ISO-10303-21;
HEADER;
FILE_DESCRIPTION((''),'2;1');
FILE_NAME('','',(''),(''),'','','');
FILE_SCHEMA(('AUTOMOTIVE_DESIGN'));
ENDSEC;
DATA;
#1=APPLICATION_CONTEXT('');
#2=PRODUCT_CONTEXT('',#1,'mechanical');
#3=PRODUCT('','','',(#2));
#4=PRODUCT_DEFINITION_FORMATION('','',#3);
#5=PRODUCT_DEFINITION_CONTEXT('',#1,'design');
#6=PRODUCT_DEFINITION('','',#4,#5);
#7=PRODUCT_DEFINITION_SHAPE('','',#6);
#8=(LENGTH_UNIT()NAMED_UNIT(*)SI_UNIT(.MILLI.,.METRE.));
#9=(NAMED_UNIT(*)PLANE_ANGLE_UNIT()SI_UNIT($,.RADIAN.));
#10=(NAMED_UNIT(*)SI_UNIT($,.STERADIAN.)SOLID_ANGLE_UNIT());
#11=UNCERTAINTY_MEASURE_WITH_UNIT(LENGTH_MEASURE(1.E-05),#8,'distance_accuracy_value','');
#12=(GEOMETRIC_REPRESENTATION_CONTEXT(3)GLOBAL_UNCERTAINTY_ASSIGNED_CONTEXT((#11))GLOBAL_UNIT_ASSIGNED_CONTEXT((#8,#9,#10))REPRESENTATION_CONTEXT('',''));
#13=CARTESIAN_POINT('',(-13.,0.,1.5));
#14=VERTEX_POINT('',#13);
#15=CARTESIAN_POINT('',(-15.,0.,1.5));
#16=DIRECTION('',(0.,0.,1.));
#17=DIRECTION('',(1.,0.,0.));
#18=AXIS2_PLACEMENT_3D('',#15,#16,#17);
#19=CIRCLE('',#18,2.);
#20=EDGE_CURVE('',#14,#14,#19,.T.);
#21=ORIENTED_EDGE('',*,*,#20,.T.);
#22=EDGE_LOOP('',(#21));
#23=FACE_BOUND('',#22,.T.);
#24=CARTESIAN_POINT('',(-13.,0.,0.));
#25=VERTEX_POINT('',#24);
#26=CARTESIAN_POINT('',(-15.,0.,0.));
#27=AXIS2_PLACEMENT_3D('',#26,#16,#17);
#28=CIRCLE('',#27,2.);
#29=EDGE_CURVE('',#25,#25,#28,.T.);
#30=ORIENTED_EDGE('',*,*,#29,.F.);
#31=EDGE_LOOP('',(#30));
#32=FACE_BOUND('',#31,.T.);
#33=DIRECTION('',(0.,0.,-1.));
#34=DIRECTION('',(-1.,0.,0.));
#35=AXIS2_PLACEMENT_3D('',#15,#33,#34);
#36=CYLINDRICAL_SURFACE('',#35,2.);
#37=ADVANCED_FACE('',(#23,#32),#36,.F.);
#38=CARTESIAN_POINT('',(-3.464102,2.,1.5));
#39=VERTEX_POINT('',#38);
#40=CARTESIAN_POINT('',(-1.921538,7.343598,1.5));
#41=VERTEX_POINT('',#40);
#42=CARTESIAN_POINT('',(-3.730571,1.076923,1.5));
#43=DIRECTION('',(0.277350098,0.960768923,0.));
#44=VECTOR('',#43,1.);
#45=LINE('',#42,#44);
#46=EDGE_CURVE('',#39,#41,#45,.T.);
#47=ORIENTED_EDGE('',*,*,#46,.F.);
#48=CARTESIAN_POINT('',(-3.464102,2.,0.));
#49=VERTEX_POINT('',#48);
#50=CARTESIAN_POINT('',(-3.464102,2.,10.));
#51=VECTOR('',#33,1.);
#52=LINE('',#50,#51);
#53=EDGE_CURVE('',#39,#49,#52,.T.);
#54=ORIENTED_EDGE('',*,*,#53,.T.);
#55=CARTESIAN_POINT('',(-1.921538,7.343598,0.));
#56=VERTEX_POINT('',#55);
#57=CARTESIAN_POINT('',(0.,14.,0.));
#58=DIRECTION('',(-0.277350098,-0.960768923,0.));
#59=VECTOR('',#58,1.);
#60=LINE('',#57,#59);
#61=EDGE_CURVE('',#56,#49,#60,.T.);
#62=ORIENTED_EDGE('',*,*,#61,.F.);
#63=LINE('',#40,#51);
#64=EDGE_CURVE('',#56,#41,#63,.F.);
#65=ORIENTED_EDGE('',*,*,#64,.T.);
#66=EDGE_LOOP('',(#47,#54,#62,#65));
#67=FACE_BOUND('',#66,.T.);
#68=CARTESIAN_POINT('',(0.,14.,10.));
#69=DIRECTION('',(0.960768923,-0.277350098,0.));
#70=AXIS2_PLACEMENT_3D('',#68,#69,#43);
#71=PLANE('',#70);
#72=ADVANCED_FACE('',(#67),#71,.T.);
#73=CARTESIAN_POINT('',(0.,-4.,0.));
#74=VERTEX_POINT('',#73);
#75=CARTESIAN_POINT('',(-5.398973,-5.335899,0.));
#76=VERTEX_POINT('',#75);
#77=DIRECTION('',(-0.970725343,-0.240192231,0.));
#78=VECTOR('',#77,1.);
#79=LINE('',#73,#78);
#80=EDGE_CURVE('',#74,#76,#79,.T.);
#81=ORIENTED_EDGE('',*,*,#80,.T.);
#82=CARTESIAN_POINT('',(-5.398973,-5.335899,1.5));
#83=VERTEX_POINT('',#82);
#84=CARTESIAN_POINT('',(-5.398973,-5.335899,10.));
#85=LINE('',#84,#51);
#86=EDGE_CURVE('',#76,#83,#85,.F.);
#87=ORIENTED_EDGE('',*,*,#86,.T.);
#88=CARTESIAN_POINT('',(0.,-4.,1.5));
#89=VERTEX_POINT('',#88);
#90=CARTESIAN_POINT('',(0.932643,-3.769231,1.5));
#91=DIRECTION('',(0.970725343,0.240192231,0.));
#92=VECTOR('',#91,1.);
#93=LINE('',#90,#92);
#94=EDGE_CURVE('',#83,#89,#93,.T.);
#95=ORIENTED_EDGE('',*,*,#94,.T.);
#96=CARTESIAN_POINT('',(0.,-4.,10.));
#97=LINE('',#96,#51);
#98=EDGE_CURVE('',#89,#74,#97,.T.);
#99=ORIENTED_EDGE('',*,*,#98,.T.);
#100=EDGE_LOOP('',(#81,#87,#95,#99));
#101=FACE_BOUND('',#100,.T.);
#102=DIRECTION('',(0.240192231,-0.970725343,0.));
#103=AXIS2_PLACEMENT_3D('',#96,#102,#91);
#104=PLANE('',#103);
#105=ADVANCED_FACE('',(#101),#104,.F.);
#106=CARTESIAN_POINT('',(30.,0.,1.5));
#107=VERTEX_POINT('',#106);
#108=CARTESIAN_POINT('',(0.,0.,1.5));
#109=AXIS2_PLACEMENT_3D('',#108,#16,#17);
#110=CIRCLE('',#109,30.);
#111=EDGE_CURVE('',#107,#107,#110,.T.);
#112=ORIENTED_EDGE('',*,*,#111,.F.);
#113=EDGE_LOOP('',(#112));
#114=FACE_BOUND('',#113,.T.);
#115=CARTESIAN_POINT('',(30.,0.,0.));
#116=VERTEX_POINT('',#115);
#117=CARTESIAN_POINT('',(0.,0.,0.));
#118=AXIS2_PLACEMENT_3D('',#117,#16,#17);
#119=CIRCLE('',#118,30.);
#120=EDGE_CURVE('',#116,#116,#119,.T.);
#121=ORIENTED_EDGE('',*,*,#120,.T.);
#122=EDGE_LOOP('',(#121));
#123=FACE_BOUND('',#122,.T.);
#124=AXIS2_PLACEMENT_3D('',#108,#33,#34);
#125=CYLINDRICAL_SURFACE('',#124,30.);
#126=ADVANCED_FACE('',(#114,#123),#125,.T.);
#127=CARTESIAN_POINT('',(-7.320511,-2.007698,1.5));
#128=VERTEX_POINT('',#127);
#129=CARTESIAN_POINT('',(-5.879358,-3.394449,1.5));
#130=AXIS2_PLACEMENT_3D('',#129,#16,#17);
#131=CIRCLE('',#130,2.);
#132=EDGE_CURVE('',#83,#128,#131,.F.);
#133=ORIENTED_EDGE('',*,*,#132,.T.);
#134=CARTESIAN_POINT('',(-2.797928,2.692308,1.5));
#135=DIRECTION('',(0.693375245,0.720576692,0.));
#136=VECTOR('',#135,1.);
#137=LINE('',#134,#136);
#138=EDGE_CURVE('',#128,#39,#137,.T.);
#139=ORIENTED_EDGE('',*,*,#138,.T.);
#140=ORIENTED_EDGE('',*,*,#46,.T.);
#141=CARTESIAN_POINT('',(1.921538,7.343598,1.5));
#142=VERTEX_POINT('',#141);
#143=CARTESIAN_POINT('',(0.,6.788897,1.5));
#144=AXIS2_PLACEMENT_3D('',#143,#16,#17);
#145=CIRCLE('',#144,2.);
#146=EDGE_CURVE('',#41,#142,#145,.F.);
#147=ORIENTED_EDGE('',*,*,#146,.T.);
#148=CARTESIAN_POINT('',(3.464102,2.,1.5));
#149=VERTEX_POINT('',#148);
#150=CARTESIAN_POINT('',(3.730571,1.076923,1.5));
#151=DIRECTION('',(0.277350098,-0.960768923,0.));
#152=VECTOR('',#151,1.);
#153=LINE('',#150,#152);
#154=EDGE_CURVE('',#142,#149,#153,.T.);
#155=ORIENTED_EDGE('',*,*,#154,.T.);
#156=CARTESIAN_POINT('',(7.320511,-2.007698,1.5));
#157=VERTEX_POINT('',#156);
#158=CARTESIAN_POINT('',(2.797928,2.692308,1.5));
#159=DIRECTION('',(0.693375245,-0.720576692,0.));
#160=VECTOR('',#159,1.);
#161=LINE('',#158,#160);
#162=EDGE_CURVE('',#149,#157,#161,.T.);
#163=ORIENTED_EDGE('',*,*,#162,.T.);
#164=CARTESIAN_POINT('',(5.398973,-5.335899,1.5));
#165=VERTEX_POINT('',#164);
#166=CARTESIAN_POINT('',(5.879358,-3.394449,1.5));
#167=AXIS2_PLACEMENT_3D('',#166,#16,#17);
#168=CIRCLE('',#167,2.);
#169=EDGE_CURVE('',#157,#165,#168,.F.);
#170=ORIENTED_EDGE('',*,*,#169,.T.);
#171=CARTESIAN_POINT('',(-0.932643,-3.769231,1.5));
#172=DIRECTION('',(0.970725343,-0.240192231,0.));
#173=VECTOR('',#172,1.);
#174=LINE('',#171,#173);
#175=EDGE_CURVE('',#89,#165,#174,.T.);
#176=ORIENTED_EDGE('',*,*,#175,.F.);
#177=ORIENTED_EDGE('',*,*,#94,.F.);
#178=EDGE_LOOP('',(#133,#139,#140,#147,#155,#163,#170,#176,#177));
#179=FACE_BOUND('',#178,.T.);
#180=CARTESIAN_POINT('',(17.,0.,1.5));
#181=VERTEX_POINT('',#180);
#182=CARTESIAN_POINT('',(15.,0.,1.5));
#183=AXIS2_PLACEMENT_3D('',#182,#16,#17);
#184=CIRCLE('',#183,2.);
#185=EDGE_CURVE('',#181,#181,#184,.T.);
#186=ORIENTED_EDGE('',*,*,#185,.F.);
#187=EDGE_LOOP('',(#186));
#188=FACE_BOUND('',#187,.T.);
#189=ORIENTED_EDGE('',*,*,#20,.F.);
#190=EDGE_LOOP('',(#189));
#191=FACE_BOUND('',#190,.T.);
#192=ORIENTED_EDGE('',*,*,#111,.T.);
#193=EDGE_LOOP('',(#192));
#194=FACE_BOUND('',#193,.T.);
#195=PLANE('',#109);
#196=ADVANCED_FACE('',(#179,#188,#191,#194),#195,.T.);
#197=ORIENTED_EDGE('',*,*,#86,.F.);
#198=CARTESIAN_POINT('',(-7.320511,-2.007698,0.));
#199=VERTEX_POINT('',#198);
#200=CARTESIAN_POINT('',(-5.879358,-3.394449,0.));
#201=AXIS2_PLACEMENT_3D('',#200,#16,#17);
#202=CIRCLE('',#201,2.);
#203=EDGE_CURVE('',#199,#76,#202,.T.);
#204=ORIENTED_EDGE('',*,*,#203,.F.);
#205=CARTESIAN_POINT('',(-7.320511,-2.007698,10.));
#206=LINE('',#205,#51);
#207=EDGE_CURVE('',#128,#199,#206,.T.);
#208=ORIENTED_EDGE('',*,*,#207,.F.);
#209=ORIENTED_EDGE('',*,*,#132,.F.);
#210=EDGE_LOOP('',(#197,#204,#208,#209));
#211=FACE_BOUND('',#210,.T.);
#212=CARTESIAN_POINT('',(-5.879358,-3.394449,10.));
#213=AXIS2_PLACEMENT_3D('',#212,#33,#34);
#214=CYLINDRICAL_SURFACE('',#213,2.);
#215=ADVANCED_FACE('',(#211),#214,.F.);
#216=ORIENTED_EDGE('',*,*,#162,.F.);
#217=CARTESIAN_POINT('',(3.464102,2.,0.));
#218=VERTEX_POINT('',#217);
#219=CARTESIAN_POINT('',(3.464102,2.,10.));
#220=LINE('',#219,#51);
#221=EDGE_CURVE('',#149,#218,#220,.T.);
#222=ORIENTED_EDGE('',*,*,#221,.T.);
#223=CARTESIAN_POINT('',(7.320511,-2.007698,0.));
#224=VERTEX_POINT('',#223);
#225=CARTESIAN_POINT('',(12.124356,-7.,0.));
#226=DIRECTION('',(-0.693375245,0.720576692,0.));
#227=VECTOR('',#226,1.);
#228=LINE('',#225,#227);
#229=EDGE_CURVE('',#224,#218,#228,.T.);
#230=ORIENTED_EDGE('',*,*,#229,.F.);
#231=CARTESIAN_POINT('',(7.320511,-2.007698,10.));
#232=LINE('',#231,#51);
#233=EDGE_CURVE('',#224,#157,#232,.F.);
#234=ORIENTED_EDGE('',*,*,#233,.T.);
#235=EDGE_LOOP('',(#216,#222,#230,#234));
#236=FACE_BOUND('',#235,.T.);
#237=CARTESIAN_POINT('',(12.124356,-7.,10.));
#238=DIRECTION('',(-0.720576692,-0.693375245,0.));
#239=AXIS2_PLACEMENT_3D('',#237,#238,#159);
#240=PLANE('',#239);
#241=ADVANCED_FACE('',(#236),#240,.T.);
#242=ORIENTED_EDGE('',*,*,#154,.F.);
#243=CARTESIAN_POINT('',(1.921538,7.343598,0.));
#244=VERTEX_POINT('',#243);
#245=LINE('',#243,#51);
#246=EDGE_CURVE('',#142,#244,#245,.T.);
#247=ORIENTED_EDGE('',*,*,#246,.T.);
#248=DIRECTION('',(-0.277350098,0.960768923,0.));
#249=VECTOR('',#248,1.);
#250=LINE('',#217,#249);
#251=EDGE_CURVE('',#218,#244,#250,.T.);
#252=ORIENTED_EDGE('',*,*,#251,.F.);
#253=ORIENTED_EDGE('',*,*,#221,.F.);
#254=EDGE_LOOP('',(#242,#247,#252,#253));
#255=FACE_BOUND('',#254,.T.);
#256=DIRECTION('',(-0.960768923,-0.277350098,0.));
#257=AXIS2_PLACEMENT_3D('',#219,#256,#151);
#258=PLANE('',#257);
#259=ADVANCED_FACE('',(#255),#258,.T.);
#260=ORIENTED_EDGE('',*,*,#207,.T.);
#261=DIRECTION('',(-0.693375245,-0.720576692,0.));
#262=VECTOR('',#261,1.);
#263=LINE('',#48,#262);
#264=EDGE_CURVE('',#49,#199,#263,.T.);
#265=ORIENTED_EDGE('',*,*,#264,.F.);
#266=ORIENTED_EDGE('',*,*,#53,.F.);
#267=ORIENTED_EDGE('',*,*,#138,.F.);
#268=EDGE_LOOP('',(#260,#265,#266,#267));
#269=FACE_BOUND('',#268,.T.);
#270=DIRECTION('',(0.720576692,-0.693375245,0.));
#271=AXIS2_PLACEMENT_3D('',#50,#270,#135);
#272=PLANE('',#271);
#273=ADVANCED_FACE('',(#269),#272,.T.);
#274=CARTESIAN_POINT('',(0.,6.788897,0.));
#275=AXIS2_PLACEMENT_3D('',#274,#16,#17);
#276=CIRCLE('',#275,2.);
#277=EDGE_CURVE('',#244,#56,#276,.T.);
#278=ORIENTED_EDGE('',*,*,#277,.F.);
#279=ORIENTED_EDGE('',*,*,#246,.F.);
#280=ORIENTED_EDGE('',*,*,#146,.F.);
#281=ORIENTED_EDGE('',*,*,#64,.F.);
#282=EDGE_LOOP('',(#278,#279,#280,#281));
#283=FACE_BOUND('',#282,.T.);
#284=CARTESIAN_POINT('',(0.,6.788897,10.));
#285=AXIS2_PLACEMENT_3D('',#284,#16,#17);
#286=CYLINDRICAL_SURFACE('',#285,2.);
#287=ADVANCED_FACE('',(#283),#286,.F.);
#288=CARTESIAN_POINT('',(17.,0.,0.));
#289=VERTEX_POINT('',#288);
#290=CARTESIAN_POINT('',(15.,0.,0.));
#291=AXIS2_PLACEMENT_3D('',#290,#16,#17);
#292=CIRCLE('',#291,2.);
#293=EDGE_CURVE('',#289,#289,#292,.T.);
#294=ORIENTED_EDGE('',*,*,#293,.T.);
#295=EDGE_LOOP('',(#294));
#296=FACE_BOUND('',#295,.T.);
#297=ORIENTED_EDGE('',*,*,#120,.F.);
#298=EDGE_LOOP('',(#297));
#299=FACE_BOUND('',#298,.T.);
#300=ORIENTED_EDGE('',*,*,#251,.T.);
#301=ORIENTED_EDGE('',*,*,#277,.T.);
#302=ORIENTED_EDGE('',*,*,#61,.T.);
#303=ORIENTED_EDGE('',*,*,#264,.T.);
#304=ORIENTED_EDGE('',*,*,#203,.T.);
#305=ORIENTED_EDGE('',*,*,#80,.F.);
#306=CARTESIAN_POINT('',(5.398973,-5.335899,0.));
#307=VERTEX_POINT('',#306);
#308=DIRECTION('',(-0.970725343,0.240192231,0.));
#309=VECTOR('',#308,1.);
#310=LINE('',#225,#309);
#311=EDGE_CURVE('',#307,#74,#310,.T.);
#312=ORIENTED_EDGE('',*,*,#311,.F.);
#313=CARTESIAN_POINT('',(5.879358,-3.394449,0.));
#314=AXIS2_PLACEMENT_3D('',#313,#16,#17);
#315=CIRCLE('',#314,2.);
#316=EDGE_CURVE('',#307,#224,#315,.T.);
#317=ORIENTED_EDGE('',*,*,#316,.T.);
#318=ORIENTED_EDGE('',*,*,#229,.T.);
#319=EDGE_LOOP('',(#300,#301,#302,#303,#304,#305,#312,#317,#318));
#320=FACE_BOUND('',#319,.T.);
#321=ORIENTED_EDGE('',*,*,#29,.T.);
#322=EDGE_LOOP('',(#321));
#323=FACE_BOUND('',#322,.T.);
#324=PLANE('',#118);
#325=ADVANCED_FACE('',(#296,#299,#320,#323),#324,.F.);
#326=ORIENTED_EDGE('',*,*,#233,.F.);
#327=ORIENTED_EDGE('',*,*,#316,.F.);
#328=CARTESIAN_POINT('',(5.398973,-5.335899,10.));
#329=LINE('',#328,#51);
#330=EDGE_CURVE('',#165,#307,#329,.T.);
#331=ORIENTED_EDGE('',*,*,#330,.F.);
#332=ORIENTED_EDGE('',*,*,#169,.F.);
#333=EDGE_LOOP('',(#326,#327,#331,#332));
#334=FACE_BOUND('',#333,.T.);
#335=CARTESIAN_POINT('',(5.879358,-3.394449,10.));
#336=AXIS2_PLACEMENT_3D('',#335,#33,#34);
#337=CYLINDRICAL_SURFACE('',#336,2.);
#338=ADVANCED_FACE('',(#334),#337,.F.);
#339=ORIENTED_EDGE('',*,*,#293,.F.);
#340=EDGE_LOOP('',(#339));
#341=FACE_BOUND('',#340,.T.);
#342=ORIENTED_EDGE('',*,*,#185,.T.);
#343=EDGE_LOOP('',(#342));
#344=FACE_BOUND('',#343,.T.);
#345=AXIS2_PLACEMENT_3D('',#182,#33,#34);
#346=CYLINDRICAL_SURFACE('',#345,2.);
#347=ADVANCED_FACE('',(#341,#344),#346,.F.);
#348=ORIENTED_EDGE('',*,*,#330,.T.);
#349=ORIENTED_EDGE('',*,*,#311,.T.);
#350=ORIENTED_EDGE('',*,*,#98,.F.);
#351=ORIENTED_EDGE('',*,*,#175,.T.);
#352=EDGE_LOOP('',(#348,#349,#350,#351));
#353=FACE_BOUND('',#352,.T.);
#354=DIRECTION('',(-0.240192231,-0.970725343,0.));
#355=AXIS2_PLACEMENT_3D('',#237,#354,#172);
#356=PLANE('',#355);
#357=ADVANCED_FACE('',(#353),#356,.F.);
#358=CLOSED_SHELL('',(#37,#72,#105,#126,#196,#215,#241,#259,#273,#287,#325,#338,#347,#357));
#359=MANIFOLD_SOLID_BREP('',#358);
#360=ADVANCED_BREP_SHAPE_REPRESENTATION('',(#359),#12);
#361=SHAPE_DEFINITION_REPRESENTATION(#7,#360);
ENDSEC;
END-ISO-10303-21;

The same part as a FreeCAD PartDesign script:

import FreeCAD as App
import Part
import Sketcher

V = App.Vector


def edges_at(feature, points):
    """Names of the edges that pass closest to the given points."""
    edges = feature.Shape.Edges
    near = lambda p: min(range(len(edges)), key=lambda i: edges[i].distToShape(Part.Vertex(*p))[0])
    return sorted({f"Edge{near(p) + 1}" for p in points})

doc = App.newDocument("Part")
body = doc.addObject("PartDesign::Body", "Body")

# Sketch on XY plane
sketch1 = body.newObject("Sketcher::SketchObject", "Sketch")
sketch1.AttachmentSupport = (doc.getObject("XY_Plane"), [""])
sketch1.MapMode = "FlatFace"
sketch1.addGeometry([
    Part.Circle(V(0, 0, 0), V(0, 0, 1), 30),
    Part.Circle(V(-15, 0, 0), V(0, 0, 1), 2),
    Part.Circle(V(15, 0, 0), V(0, 0, 1), 2),
], False)
sketch1.addConstraint([
    Sketcher.Constraint("Coincident", 0, 3, -1, 1),
    Sketcher.Constraint("Equal", 1, 2),
    Sketcher.Constraint("Symmetric", 1, 3, 2, 3, -1, 1),
    Sketcher.Constraint("PointOnObject", 1, 3, -1),
    Sketcher.Constraint("Diameter", 0, 60.0),
    Sketcher.Constraint("Diameter", 1, 4.0),
    Sketcher.Constraint("DistanceX", 1, 3, -1, 1, 15.0),
])
pad1 = body.newObject("PartDesign::Pad", "Pad")
pad1.Profile = sketch1
pad1.Length = 1.5

# Sketch on XY plane
sketch2 = body.newObject("Sketcher::SketchObject", "Sketch001")
sketch2.AttachmentSupport = (doc.getObject("XY_Plane"), [""])
sketch2.MapMode = "FlatFace"
sketch2.addGeometry([
    Part.LineSegment(V(3, 2, 0), V(12, -7, 0)),  # 0
    Part.LineSegment(V(12, -7, 0), V(0, -4, 0)),  # 1
    Part.LineSegment(V(0, -4, 0), V(-12, -7, 0)),  # 2
    Part.LineSegment(V(-12, -7, 0), V(-3, 2, 0)),  # 3
    Part.LineSegment(V(-3, 2, 0), V(0, 14, 0)),  # 4
    Part.LineSegment(V(0, 14, 0), V(3, 2, 0)),  # 5
], False)
sketch2.addConstraint([
    Sketcher.Constraint("Coincident", 0, 2, 1, 1),
    Sketcher.Constraint("Coincident", 1, 2, 2, 1),
    Sketcher.Constraint("Coincident", 2, 2, 3, 1),
    Sketcher.Constraint("Coincident", 3, 2, 4, 1),
    Sketcher.Constraint("Coincident", 4, 2, 5, 1),
    Sketcher.Constraint("Coincident", 5, 2, 0, 1),
    Sketcher.Constraint("Symmetric", 0, 2, 2, 2, -2),
    Sketcher.Constraint("Symmetric", 3, 2, 5, 2, -2),
    Sketcher.Constraint("PointOnObject", 1, 2, -2),
    Sketcher.Constraint("PointOnObject", 4, 2, -2),
    Sketcher.Constraint("Equal", 0, 1),
    Sketcher.Constraint("Equal", 3, 4),
    Sketcher.Constraint("DistanceY", 0, 2, -1, 1, 7.0),
    Sketcher.Constraint("DistanceY", 1, 2, -1, 1, 4.0),
    Sketcher.Constraint("DistanceY", -1, 1, 3, 2, 2.0),
    Sketcher.Constraint("DistanceY", -1, 1, 4, 2, 14.0),
])
pocket1 = body.newObject("PartDesign::Pocket", "Pocket")
pocket1.Profile = sketch2
pocket1.Length = 10
pocket1.Reversed = True
doc.recompute()

fillet = body.newObject("PartDesign::Fillet", "Fillet")
fillet.Base = (pocket1, edges_at(pocket1, [(-12.124, -7, 0.75), (12.124, -7, 0.75), (0, 14, 0.75)]))
fillet.Radius = 2

doc.recompute()
